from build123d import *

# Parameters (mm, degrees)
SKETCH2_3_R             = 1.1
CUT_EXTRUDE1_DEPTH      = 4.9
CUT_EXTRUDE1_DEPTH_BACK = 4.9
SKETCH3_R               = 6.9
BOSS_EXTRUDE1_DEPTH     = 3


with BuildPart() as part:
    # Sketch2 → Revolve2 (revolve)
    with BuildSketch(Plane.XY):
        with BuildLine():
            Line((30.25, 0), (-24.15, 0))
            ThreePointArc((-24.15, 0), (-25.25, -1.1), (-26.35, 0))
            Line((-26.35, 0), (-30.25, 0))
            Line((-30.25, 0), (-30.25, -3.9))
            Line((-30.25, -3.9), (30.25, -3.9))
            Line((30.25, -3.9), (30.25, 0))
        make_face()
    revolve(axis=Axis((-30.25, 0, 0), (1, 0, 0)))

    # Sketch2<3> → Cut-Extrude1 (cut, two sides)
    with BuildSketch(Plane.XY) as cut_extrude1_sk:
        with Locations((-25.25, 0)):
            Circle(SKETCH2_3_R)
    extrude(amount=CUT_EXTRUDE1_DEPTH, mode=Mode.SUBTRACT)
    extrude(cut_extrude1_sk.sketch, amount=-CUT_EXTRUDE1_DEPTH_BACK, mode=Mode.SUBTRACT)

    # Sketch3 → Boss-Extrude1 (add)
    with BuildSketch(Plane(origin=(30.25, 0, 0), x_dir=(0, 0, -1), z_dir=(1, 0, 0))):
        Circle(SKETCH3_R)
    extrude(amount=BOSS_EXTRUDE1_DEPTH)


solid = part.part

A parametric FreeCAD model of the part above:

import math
import FreeCAD as App
import Part
import Sketcher
from FreeCAD import Vector
Q = App.Units.Quantity

doc = App.newDocument("Part")
body = doc.addObject("PartDesign::Body", "Body")

# Sketch on XY plane
sketch1 = body.newObject("Sketcher::SketchObject", "Sketch")
sketch1.AttachmentSupport = (doc.getObject("XY_Plane"), [""])
sketch1.MapMode = "FlatFace"
sketch1.addGeometry(Part.LineSegment(Vector(30.2, 0, 0), Vector(-24.1, 0, 0)), False)
sketch1.addGeometry(Part.ArcOfCircle(Part.Circle(Vector(-25.2, 0, 0), Vector(0, 0, 1), 1.1), math.radians(180), math.radians(360)), False)
sketch1.addGeometry(Part.LineSegment(Vector(-26.4, 0, 0), Vector(-30.2, 0, 0)), False)
sketch1.addGeometry(Part.LineSegment(Vector(-30.2, 0, 0), Vector(-30.2, -3.9, 0)), False)
sketch1.addGeometry(Part.LineSegment(Vector(-30.2, -3.9, 0), Vector(30.2, -3.9, 0)), False)
sketch1.addGeometry(Part.LineSegment(Vector(30.2, -3.9, 0), Vector(30.2, 0, 0)), False)
sketch1.addConstraint(Sketcher.Constraint("Coincident", 0, 2, 1, 2))
sketch1.addConstraint(Sketcher.Constraint("Coincident", 1, 1, 2, 1))
sketch1.addConstraint(Sketcher.Constraint("Coincident", 2, 2, 3, 1))
sketch1.addConstraint(Sketcher.Constraint("Coincident", 3, 2, 4, 1))
sketch1.addConstraint(Sketcher.Constraint("Coincident", 4, 2, 5, 1))
sketch1.addConstraint(Sketcher.Constraint("Coincident", 5, 2, 0, 1))
sketch1.addConstraint(Sketcher.Constraint("Horizontal", 0))
sketch1.addConstraint(Sketcher.Constraint("Horizontal", 2))
sketch1.addConstraint(Sketcher.Constraint("Vertical", 3))
sketch1.addConstraint(Sketcher.Constraint("Horizontal", 4))
sketch1.addConstraint(Sketcher.Constraint("Vertical", 5))
sketch1.addConstraint(Sketcher.Constraint("Symmetric", 2, 2, 5, 2, -1, 1))
sketch1.addConstraint(Sketcher.Constraint("PointOnObject", 1, 3, -1))
sketch1.addConstraint(Sketcher.Constraint("PointOnObject", 0, 2, -1))
sketch1.addConstraint(Sketcher.Constraint("Equal", 2, 3))
sketch1.addConstraint(Sketcher.Constraint("Radius", 1, Q("1.1 mm")))
sketch1.addConstraint(Sketcher.Constraint("DistanceX", 0, 2, 0, 1, Q("54.4 mm")))
sketch1.addConstraint(Sketcher.Constraint("DistanceX", 2, 2, 2, 1, Q("3.9 mm")))
revolution = body.newObject("PartDesign::Revolution", "Revolution")
revolution.Profile = sketch1
revolution.ReferenceAxis = (sketch1, ["H_Axis"])
revolution.Angle = 360

# Sketch on XY plane
sketch2 = body.newObject("Sketcher::SketchObject", "Sketch001")
sketch2.AttachmentSupport = (doc.getObject("XY_Plane"), [""])
sketch2.MapMode = "FlatFace"
sketch2.addGeometry(Part.Circle(Vector(-25.2, 0, 0), Vector(0, 0, 1), 1.1), False)
sketch2.addConstraint(Sketcher.Constraint("PointOnObject", 0, 3, -1))
sketch2.addConstraint(Sketcher.Constraint("Diameter", 0, Q("2.2 mm")))
sketch2.addConstraint(Sketcher.Constraint("DistanceX", 0, 3, -1, 1, Q("25.25 mm")))
pocket1 = body.newObject("PartDesign::Pocket", "Pocket")
pocket1.Profile = sketch2
pocket1.Type = "ThroughAll"
pocket1.Midplane = True

# Sketch on YZ plane
sketch3 = body.newObject("Sketcher::SketchObject", "Sketch002")
sketch3.AttachmentSupport = (doc.getObject("YZ_Plane"), [""])
sketch3.MapMode = "FlatFace"
sketch3.AttachmentOffset = App.Placement(Vector(0, 0, 30.25), App.Rotation())
sketch3.addGeometry(Part.Circle(Vector(0, 0, 0), Vector(0, 0, 1), 7), False)
sketch3.addConstraint(Sketcher.Constraint("Coincident", 0, 3, -1, 1))
sketch3.addConstraint(Sketcher.Constraint("Diameter", 0, Q("13.8 mm")))
pad1 = body.newObject("PartDesign::Pad", "Pad")
pad1.Profile = sketch3
pad1.Length = 3

doc.recompute()
